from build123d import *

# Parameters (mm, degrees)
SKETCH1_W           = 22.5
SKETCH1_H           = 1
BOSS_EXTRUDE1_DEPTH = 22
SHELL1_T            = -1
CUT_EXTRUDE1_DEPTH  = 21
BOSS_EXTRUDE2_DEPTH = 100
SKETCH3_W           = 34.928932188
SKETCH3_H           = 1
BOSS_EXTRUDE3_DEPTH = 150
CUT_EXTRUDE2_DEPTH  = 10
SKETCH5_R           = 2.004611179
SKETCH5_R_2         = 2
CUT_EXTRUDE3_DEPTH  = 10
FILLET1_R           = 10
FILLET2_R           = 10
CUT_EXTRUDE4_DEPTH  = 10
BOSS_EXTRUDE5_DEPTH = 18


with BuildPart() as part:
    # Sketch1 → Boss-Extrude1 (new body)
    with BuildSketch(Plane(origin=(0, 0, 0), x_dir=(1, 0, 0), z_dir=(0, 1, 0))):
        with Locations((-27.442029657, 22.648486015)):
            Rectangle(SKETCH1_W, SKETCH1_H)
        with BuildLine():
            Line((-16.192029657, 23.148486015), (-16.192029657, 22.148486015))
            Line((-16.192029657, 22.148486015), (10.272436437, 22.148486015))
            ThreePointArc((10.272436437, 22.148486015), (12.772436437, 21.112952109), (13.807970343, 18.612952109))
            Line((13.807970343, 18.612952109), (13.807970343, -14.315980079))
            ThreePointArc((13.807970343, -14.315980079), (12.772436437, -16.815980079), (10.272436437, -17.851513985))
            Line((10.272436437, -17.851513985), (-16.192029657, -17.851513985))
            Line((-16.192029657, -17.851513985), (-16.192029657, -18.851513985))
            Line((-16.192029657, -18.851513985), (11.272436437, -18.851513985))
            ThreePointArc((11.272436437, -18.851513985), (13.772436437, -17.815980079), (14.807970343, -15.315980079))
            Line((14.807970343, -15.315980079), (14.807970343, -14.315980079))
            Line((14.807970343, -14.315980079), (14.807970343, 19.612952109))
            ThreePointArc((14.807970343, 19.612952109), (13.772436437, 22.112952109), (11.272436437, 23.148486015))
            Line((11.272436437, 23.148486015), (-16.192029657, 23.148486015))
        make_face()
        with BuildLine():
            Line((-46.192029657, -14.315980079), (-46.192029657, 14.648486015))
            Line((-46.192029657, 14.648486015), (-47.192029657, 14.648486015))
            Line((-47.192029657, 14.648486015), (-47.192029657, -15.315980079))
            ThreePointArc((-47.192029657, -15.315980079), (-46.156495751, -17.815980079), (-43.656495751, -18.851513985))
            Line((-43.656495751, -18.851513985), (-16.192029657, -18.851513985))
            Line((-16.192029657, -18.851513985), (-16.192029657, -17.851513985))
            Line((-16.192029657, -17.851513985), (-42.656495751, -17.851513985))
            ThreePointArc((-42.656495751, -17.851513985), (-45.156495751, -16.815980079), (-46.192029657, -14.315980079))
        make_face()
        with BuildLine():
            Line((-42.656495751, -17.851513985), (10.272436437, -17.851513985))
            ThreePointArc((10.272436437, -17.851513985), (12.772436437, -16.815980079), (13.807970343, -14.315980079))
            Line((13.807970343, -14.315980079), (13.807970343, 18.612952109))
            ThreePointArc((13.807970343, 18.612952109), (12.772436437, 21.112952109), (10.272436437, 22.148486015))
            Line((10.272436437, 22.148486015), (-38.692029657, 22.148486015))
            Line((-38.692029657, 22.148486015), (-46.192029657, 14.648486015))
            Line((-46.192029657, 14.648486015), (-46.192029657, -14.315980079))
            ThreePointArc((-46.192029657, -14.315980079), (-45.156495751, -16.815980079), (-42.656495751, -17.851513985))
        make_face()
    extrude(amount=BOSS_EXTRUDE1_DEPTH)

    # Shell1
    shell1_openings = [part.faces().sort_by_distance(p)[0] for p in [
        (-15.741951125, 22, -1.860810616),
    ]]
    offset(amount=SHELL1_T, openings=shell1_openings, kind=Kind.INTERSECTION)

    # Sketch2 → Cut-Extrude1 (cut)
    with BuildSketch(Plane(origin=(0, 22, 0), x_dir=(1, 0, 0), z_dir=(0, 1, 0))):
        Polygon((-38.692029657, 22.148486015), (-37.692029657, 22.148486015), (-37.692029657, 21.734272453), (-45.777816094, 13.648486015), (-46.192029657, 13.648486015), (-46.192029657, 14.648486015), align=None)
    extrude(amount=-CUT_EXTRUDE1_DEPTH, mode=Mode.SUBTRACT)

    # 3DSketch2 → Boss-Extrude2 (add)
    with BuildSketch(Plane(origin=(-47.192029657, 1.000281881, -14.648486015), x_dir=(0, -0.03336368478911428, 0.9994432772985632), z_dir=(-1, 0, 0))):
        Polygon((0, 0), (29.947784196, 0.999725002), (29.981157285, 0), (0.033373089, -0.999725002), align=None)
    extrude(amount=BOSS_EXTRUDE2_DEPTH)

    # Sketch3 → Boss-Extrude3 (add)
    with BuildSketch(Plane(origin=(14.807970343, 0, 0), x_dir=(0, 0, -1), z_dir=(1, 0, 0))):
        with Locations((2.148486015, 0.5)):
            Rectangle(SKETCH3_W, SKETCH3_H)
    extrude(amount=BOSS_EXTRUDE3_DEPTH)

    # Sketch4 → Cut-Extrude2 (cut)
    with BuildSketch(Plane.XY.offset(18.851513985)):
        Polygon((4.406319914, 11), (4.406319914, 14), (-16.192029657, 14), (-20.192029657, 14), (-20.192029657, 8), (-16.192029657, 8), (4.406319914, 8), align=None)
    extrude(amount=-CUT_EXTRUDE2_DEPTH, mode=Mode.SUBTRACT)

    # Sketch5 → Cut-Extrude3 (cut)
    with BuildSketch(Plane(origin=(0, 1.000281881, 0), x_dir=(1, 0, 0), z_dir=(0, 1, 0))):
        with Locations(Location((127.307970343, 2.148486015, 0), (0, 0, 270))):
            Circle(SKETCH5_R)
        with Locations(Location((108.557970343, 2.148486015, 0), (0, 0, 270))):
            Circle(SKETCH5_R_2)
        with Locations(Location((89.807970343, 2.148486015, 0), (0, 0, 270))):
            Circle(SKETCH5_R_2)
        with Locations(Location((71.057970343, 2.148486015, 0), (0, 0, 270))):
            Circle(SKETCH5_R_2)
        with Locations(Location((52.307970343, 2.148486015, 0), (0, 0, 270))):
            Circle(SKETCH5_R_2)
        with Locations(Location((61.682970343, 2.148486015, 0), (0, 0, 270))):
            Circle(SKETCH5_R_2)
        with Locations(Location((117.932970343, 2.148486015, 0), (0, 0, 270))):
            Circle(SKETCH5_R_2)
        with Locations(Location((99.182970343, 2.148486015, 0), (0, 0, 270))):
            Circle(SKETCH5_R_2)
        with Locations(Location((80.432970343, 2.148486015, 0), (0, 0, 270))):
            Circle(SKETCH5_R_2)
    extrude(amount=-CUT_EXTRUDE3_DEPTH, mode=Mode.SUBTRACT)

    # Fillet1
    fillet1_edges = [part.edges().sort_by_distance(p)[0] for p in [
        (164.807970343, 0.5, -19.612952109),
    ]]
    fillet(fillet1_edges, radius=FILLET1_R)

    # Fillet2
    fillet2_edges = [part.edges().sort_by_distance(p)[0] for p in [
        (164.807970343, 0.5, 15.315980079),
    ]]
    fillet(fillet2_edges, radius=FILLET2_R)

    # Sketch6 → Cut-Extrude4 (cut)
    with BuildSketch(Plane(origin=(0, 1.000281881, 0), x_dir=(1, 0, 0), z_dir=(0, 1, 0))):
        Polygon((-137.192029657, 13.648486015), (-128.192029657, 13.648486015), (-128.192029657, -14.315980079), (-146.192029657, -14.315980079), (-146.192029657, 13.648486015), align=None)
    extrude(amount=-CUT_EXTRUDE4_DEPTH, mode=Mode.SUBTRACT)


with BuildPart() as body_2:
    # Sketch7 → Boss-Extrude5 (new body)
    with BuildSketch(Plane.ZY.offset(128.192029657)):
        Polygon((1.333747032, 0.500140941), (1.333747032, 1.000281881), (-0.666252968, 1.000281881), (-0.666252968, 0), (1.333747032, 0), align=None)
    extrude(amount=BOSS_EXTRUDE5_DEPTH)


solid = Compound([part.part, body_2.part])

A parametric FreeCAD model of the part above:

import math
import FreeCAD as App
import Part
import Sketcher
from FreeCAD import Vector
Q = App.Units.Quantity


def edges_at(feature, points):
    """Names of the edges that pass closest to the given points."""
    edges = feature.Shape.Edges
    near = lambda p: min(range(len(edges)), key=lambda i: edges[i].distToShape(Part.Vertex(*p))[0])
    return sorted({f"Edge{near(p) + 1}" for p in points})


def faces_at(feature, points):
    """Names of the faces that lie closest to the given points."""
    faces = feature.Shape.Faces
    near = lambda p: min(range(len(faces)), key=lambda i: faces[i].distToShape(Part.Vertex(*p))[0])
    return sorted({f"Face{near(p) + 1}" for p in points})


def add_polygon(sketch, points):
    """Adds a closed chain of lines whose ends are joined by coincident constraints."""
    first, n = sketch.GeometryCount, len(points)
    for a, b in zip(points, points[1:] + points[:1]):
        sketch.addGeometry(Part.LineSegment(App.Vector(*a, 0), App.Vector(*b, 0)), False)
    for i in range(n):
        sketch.addConstraint(Sketcher.Constraint("Coincident", first + i, 2, first + (i + 1) % n, 1))

doc = App.newDocument("Part")
params = doc.addObject("Spreadsheet::Sheet", "Params")
for row, (alias, value) in enumerate([
    ("sketch1_width", "1 mm"),
    ("pad1_length", "22 mm"),
    ("thickness_wall", "1 mm"),
    ("sketch2_width", "1 mm"),
    ("pocket1_length", "21 mm"),
    ("pad2_length", "100 mm"),
    ("sketch4_width", "1 mm"),
    ("pad3_length", "150 mm"),
    ("sketch5_height", "6 mm"),
    ("pocket2_length", "10 mm"),
    ("sketch6_diameter", "4 mm"),
    ("pocket3_length", "10 mm"),
    ("fillet_radius", "10 mm"),
    ("fillet2_radius", "10 mm"),
    ("sketch7_width", "18 mm"),
    ("pocket4_length", "10 mm"),
    ("sketch8_height", "2 mm"),
    ("pad4_length", "18 mm"),
], start=1):
    params.set(f"A{row}", alias)
    params.set(f"B{row}", "=" + value)
    params.setAlias(f"B{row}", alias)

body = doc.addObject("PartDesign::Body", "Body")

sketch1 = body.newObject("Sketcher::SketchObject", "Sketch")
sketch1.AttachmentSupport = (doc.getObject("XZ_Plane"), [""])
sketch1.MapMode = "FlatFace"
sketch1.addGeometry([
    Part.LineSegment(Vector(-38.7, -23.1, 0), Vector(-38.7, -22.1, 0)),
    Part.LineSegment(Vector(-38.7, -22.1, 0), Vector(-46.2, -14.6, 0)),
    Part.LineSegment(Vector(-46.2, -14.6, 0), Vector(-47.2, -14.6, 0)),
    Part.LineSegment(Vector(-47.2, -14.6, 0), Vector(-47.2, 15.3, 0)),
    Part.ArcOfCircle(Part.Circle(Vector(-43.7, 15.3, 0), Vector(0, 0, 1), 3.5), math.radians(90), math.radians(180)),
    Part.LineSegment(Vector(-43.7, 18.9, 0), Vector(11.3, 18.9, 0)),
    Part.ArcOfCircle(Part.Circle(Vector(11.3, 15.3, 0), Vector(0, 0, 1), 3.5), math.radians(0), math.radians(90)),
    Part.LineSegment(Vector(14.8, 15.3, 0), Vector(14.8, -19.6, 0)),
    Part.ArcOfCircle(Part.Circle(Vector(11.3, -19.6, 0), Vector(0, 0, 1), 3.5), math.radians(-90), math.radians(0)),
    Part.LineSegment(Vector(11.3, -23.1, 0), Vector(-38.7, -23.1, 0)),
], False)
sketch1.addConstraint([
    Sketcher.Constraint("Coincident", 0, 2, 1, 1),
    Sketcher.Constraint("Coincident", 1, 2, 2, 1),
    Sketcher.Constraint("Coincident", 2, 2, 3, 1),
    Sketcher.Constraint("Tangent", 3, 2, 4, 2),
    Sketcher.Constraint("Tangent", 4, 1, 5, 1),
    Sketcher.Constraint("Tangent", 5, 2, 6, 2),
    Sketcher.Constraint("Tangent", 6, 1, 7, 1),
    Sketcher.Constraint("Tangent", 7, 2, 8, 2),
    Sketcher.Constraint("Tangent", 8, 1, 9, 1),
    Sketcher.Constraint("Coincident", 9, 2, 0, 1),
    Sketcher.Constraint("Vertical", 0),
    Sketcher.Constraint("Horizontal", 2),
    Sketcher.Constraint("Vertical", 3),
    Sketcher.Constraint("Horizontal", 5),
    Sketcher.Constraint("Vertical", 7),
    Sketcher.Constraint("Horizontal", 9),
    Sketcher.Constraint("Equal", 4, 6),
    Sketcher.Constraint("Equal", 6, 8),
    Sketcher.Constraint("Equal", 2, 0),
    Sketcher.Constraint("DistanceX", 2, 2, 2, 1, 1.0),
    Sketcher.Constraint("Angle", 1, Q("135 deg")),
    Sketcher.Constraint("DistanceY", 0, 2, 4, 1, 41.0),
    Sketcher.Constraint("DistanceX", 1, 2, 0, 2, 7.5),
    Sketcher.Constraint("DistanceX", 0, 2, 7, 2, 53.5),
    Sketcher.Constraint("Radius", 4, 3.535534),
    Sketcher.Constraint("DistanceY", -1, 1, 4, 3, 15.31598),
    Sketcher.Constraint("DistanceX", 0, 2, -1, 1, 38.69203),
])
sketch1.setExpression("Constraints[19]", "Params.sketch1_width")
pad1 = body.newObject("PartDesign::Pad", "Pad")
pad1.Profile = sketch1
pad1.setExpression("Length", "Params.pad1_length")
pad1.Reversed = True
doc.recompute()

thickness = body.newObject("PartDesign::Thickness", "Thickness")
thickness.Base = (pad1, faces_at(pad1, [(-16.192, 22, -2.148)]))
thickness.setExpression("Value", "Params.thickness_wall")
thickness.Reversed = True
thickness.Join = "Intersection"

sketch2 = body.newObject("Sketcher::SketchObject", "Sketch001")
sketch2.AttachmentSupport = (doc.getObject("XZ_Plane"), [""])
sketch2.MapMode = "FlatFace"
sketch2.AttachmentOffset = App.Placement(Vector(0, 0, -22), App.Rotation())
add_polygon(sketch2, [(-37.69, -22.15), (-38.69, -22.15), (-46.19, -14.65), (-46.19, -13.65), (-45.78, -13.65), (-37.69, -21.73)])
sketch2.addConstraint([
    Sketcher.Constraint("Horizontal", 0),
    Sketcher.Constraint("Vertical", 2),
    Sketcher.Constraint("Horizontal", 3),
    Sketcher.Constraint("Vertical", 5),
    Sketcher.Constraint("Parallel", 1, 4),
    Sketcher.Constraint("Equal", 0, 2),
    Sketcher.Constraint("Equal", 3, 5),
    Sketcher.Constraint("DistanceX", 0, 2, 0, 1, 1.0),
    Sketcher.Constraint("DistanceX", 1, 2, 0, 2, 7.5),
    Sketcher.Constraint("Distance", 4, 11.435029),
    Sketcher.Constraint("DistanceX", 0, 2, -1, 1, 38.69203),
    Sketcher.Constraint("DistanceY", 0, 2, -1, 1, 22.148486),
])
sketch2.setExpression("Constraints[13]", "Params.sketch2_width")
pocket1 = body.newObject("PartDesign::Pocket", "Pocket")
pocket1.Profile = sketch2
pocket1.setExpression("Length", "Params.pocket1_length")
pocket1.Reversed = True

sketch3 = body.newObject("Sketcher::SketchObject", "Sketch002")
sketch3.AttachmentSupport = (doc.getObject("YZ_Plane"), [""])
sketch3.MapMode = "FlatFace"
sketch3.AttachmentOffset = App.Placement(Vector(0, 0, -47.19203), App.Rotation())
add_polygon(sketch3, [(1, 15.3), (1, -14.6), (0, -14.6), (0, 15.3)])
sketch3.addConstraint([
    Sketcher.Constraint("Vertical", 0),
    Sketcher.Constraint("Horizontal", 1),
    Sketcher.Constraint("Vertical", 2),
    Sketcher.Constraint("Horizontal", 3),
    Sketcher.Constraint("PointOnObject", 1, 2, -2),
    Sketcher.Constraint("DistanceX", 1, 2, 1, 1, 1.000282),
    Sketcher.Constraint("DistanceY", 0, 2, 0, 1, 29.964466),
    Sketcher.Constraint("DistanceY", -1, 1, 2, 2, 15.31598),
])
pad2 = body.newObject("PartDesign::Pad", "Pad001")
pad2.Profile = sketch3
pad2.setExpression("Length", "Params.pad2_length")
pad2.Reversed = True

sketch4 = body.newObject("Sketcher::SketchObject", "Sketch003")
sketch4.AttachmentSupport = (doc.getObject("YZ_Plane"), [""])
sketch4.MapMode = "FlatFace"
sketch4.AttachmentOffset = App.Placement(Vector(0, 0, 14.80797), App.Rotation())
add_polygon(sketch4, [(1, 15.3), (0, 15.3), (0, -19.6), (1, -19.6)])
sketch4.addConstraint([
    Sketcher.Constraint("Horizontal", 0),
    Sketcher.Constraint("Vertical", 1),
    Sketcher.Constraint("Horizontal", 2),
    Sketcher.Constraint("Vertical", 3),
    Sketcher.Constraint("PointOnObject", 0, 2, -2),
    Sketcher.Constraint("DistanceX", 0, 2, 0, 1, 1.0),
    Sketcher.Constraint("DistanceY", 1, 2, 1, 1, 34.928932),
    Sketcher.Constraint("DistanceY", -1, 1, 0, 2, 15.31598),
])
sketch4.setExpression("Constraints[9]", "Params.sketch4_width")
pad3 = body.newObject("PartDesign::Pad", "Pad002")
pad3.Profile = sketch4
pad3.setExpression("Length", "Params.pad3_length")

sketch5 = body.newObject("Sketcher::SketchObject", "Sketch004")
sketch5.AttachmentSupport = (doc.getObject("XY_Plane"), [""])
sketch5.MapMode = "FlatFace"
sketch5.AttachmentOffset = App.Placement(Vector(0, 0, 18.851514), App.Rotation())
add_polygon(sketch5, [(4, 14), (-20, 14), (-20, 8), (4, 8)])
sketch5.addConstraint([
    Sketcher.Constraint("Horizontal", 0),
    Sketcher.Constraint("Vertical", 1),
    Sketcher.Constraint("Horizontal", 2),
    Sketcher.Constraint("Vertical", 3),
    Sketcher.Constraint("DistanceY", 1, 2, 1, 1, 6.0),
    Sketcher.Constraint("DistanceY", -1, 1, 0, 2, 14.0),
    Sketcher.Constraint("DistanceX", 0, 2, 0, 1, 24.59835),
    Sketcher.Constraint("DistanceX", 0, 2, -1, 1, 20.19203),
])
sketch5.setExpression("Constraints[8]", "Params.sketch5_height")
pocket2 = body.newObject("PartDesign::Pocket", "Pocket001")
pocket2.Profile = sketch5
pocket2.setExpression("Length", "Params.pocket2_length")

sketch6 = body.newObject("Sketcher::SketchObject", "Sketch005")
sketch6.AttachmentSupport = (doc.getObject("XZ_Plane"), [""])
sketch6.MapMode = "FlatFace"
sketch6.AttachmentOffset = App.Placement(Vector(0, 0, -1.000282), App.Rotation())
sketch6.addGeometry([
    Part.Circle(Vector(127.3, -2.1, 0), Vector(0, 0, 1), 2),
    Part.Circle(Vector(108.6, -2.1, 0), Vector(0, 0, 1), 2),
    Part.Circle(Vector(89.8, -2.1, 0), Vector(0, 0, 1), 2),
    Part.Circle(Vector(71.1, -2.1, 0), Vector(0, 0, 1), 2),
    Part.Circle(Vector(52.3, -2.1, 0), Vector(0, 0, 1), 2),
    Part.Circle(Vector(61.7, -2.1, 0), Vector(0, 0, 1), 2),
    Part.Circle(Vector(117.9, -2.1, 0), Vector(0, 0, 1), 2),
    Part.Circle(Vector(99.2, -2.1, 0), Vector(0, 0, 1), 2),
    Part.Circle(Vector(80.4, -2.1, 0), Vector(0, 0, 1), 2),
], False)
sketch6.addConstraint([
    Sketcher.Constraint("Equal", 1, 2),
    Sketcher.Constraint("Equal", 2, 3),
    Sketcher.Constraint("Equal", 3, 4),
    Sketcher.Constraint("Equal", 4, 5),
    Sketcher.Constraint("Equal", 5, 6),
    Sketcher.Constraint("Equal", 6, 7),
    Sketcher.Constraint("Equal", 7, 8),
    Sketcher.Constraint("Horizontal", 0, 3, 1, 3),
    Sketcher.Constraint("Horizontal", 1, 3, 2, 3),
    Sketcher.Constraint("Horizontal", 2, 3, 3, 3),
    Sketcher.Constraint("Horizontal", 3, 3, 4, 3),
    Sketcher.Constraint("Horizontal", 4, 3, 5, 3),
    Sketcher.Constraint("Horizontal", 5, 3, 6, 3),
    Sketcher.Constraint("Horizontal", 6, 3, 7, 3),
    Sketcher.Constraint("Horizontal", 7, 3, 8, 3),
    Sketcher.Constraint("Diameter", 1, 4.0),
    Sketcher.Constraint("DistanceX", 4, 3, 0, 3, 75.0),
    Sketcher.Constraint("DistanceX", 2, 3, 0, 3, 37.5),
    Sketcher.Constraint("DistanceX", 3, 3, 1, 3, 37.5),
    Sketcher.Constraint("DistanceX", 1, 3, 0, 3, 18.75),
    Sketcher.Constraint("DistanceX", 5, 3, 6, 3, 56.25),
    Sketcher.Constraint("DistanceX", 7, 3, 6, 3, 18.75),
    Sketcher.Constraint("DistanceX", 5, 3, 8, 3, 18.75),
    Sketcher.Constraint("Diameter", 0, 4.009222),
    Sketcher.Constraint("DistanceX", 5, 3, 3, 3, 9.375),
    Sketcher.Constraint("DistanceX", -1, 1, 0, 3, 127.30797),
    Sketcher.Constraint("DistanceY", 0, 3, -1, 1, 2.148486),
])
sketch6.setExpression("Constraints[15]", "Params.sketch6_diameter")
pocket3 = body.newObject("PartDesign::Pocket", "Pocket002")
pocket3.Profile = sketch6
pocket3.setExpression("Length", "Params.pocket3_length")
pocket3.Reversed = True
doc.recompute()

fillet = body.newObject("PartDesign::Fillet", "Fillet")
fillet.Base = (pocket3, edges_at(pocket3, [(164.808, 0.5, -19.613)]))
fillet.setExpression("Radius", "Params.fillet_radius")
doc.recompute()

fillet2 = body.newObject("PartDesign::Fillet", "Fillet001")
fillet2.Base = (fillet, edges_at(fillet, [(164.808, 0.5, 15.316)]))
fillet2.setExpression("Radius", "Params.fillet2_radius")

sketch7 = body.newObject("Sketcher::SketchObject", "Sketch006")
sketch7.AttachmentSupport = (doc.getObject("XZ_Plane"), [""])
sketch7.MapMode = "FlatFace"
sketch7.AttachmentOffset = App.Placement(Vector(0, 0, -1.000282), App.Rotation())
add_polygon(sketch7, [(-128, -14), (-146, -14), (-146, 14), (-128, 14)])
sketch7.addConstraint([
    Sketcher.Constraint("Horizontal", 0),
    Sketcher.Constraint("Vertical", 1),
    Sketcher.Constraint("Horizontal", 2),
    Sketcher.Constraint("Vertical", 3),
    Sketcher.Constraint("DistanceX", 0, 2, 0, 1, 18.0),
    Sketcher.Constraint("DistanceY", 1, 1, 1, 2, 27.964466),
    Sketcher.Constraint("DistanceX", 0, 2, -1, 1, 146.19203),
    Sketcher.Constraint("DistanceY", -1, 1, 1, 2, 14.31598),
])
sketch7.setExpression("Constraints[8]", "Params.sketch7_width")
pocket4 = body.newObject("PartDesign::Pocket", "Pocket003")
pocket4.Profile = sketch7
pocket4.setExpression("Length", "Params.pocket4_length")
pocket4.Reversed = True
body2 = doc.addObject("PartDesign::Body", "Body001")

sketch8 = body2.newObject("Sketcher::SketchObject", "Sketch007")
sketch8.AttachmentSupport = (doc.getObject("YZ_Plane001"), [""])
sketch8.MapMode = "FlatFace"
sketch8.AttachmentOffset = App.Placement(Vector(0, 0, -128.19203), App.Rotation())
add_polygon(sketch8, [(1, 1.3), (1, -0.7), (0, -0.7), (0, 1.3)])
sketch8.addConstraint([
    Sketcher.Constraint("Vertical", 0),
    Sketcher.Constraint("Horizontal", 1),
    Sketcher.Constraint("Vertical", 2),
    Sketcher.Constraint("Horizontal", 3),
    Sketcher.Constraint("PointOnObject", 1, 2, -2),
    Sketcher.Constraint("DistanceY", 0, 2, 0, 1, 2.0),
    Sketcher.Constraint("DistanceX", 1, 2, 1, 1, 1.000282),
    Sketcher.Constraint("DistanceY", 0, 2, -1, 1, 0.666253),
])
sketch8.setExpression("Constraints[9]", "Params.sketch8_height")
pad4 = body2.newObject("PartDesign::Pad", "Pad003")
pad4.Profile = sketch8
pad4.setExpression("Length", "Params.pad4_length")
pad4.Reversed = True

doc.recompute()
